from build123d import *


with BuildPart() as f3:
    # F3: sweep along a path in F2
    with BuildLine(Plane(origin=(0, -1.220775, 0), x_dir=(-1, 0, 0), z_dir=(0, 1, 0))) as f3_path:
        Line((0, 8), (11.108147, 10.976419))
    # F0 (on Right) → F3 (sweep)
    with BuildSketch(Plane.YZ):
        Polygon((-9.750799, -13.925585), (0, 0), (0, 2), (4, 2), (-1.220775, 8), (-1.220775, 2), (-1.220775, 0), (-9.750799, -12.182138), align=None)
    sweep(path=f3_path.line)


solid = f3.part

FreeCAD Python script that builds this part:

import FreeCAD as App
import Part
import Sketcher
from FreeCAD import Vector
Q = App.Units.Quantity


def add_polygon(sketch, points):
    """Adds a closed chain of lines whose ends are joined by coincident constraints."""
    first, n = sketch.GeometryCount, len(points)
    for a, b in zip(points, points[1:] + points[:1]):
        sketch.addGeometry(Part.LineSegment(App.Vector(*a, 0), App.Vector(*b, 0)), False)
    for i in range(n):
        sketch.addConstraint(Sketcher.Constraint("Coincident", first + i, 2, first + (i + 1) % n, 1))

doc = App.newDocument("Part")
params = doc.addObject("Spreadsheet::Sheet", "Params")
for row, (alias, value) in enumerate([
    ("sketch1_width", "4 mm"),
    ("sketch1_height", "2 mm"),
    ("sketch1_height2", "8 mm"),
    ("sketch1_length", "17 mm"),
    ("sketch2_width", "11.5 mm"),
], start=1):
    params.set(f"A{row}", alias)
    params.set(f"B{row}", "=" + value)
    params.setAlias(f"B{row}", alias)

body = doc.addObject("PartDesign::Body", "Body")

# Sketch on YZ plane
sketch1 = doc.addObject("Sketcher::SketchObject", "Sketch")
body.addObject(sketch1)
sketch1.AttachmentSupport = (doc.YZ_Plane, [""])
sketch1.MapMode = "FlatFace"
add_polygon(sketch1, [(-9.750799, -13.925585), (0, 0), (0, 2), (4, 2), (-1.220775, 8), (-1.220775, 0), (-9.750799, -12.182138)])  # lines 0-6
sketch1.addConstraint([
    Sketcher.Constraint("Vertical", 1),
    Sketcher.Constraint("Horizontal", 2),
    Sketcher.Constraint("Vertical", 4),
    Sketcher.Constraint("Vertical", 6),
    Sketcher.Constraint("Coincident", 0, 2, -1, 1),
    Sketcher.Constraint("PointOnObject", 4, 2, -1),
    Sketcher.Constraint("Parallel", 0, 5),
    Sketcher.Constraint("DistanceX", 2, 1, 2, 2, 4.0),
    Sketcher.Constraint("DistanceY", 1, 1, 1, 2, 2.0),
    Sketcher.Constraint("DistanceY", 4, 2, 4, 1, 8.0),
    Sketcher.Constraint("Angle", 0, Q("55.000002 deg")),
    Sketcher.Constraint("Distance", 0, 17.0),
    Sketcher.Constraint("DistanceY", 6, 2, 6, 1, 1.743447),
])
sketch1.setExpression("Constraints[14]", "Params.sketch1_width")
sketch1.setExpression("Constraints[15]", "Params.sketch1_height")
sketch1.setExpression("Constraints[16]", "Params.sketch1_height2")
sketch1.setExpression("Constraints[18]", "Params.sketch1_length")

# Sketch on an angled plane
sketch2 = doc.addObject("Sketcher::SketchObject", "Sketch001")
body.addObject(sketch2)
sketch2.Placement = App.Placement(Vector(2, 0, 7.464102), App.Rotation(Vector(-0.965925827, 0, 0.258819044), Vector(0, 1.000000001, 0), Vector(-0.258819044, 0, -0.965925827), "ZXY"))
sketch2.addGeometry(Part.LineSegment(Vector(2.070552, -1.220775, 0), Vector(13.570552, -1.220775, 0)), False)
sketch2.addConstraint([
    Sketcher.Constraint("Horizontal", 0),
    Sketcher.Constraint("DistanceX", 0, 1, 0, 2, 11.5),
    Sketcher.Constraint("DistanceX", -1, 1, 0, 1, 2.070552),
    Sketcher.Constraint("DistanceY", 0, 1, -1, 1, 1.220775),
])
sketch2.setExpression("Constraints[1]", "Params.sketch2_width")
doc.recompute()

additivepipe = doc.addObject("PartDesign::AdditivePipe", "AdditivePipe")
body.addObject(additivepipe)
additivepipe.Profile = sketch1
additivepipe.Spine = (sketch2, ["Edge1"])

doc.recompute()
